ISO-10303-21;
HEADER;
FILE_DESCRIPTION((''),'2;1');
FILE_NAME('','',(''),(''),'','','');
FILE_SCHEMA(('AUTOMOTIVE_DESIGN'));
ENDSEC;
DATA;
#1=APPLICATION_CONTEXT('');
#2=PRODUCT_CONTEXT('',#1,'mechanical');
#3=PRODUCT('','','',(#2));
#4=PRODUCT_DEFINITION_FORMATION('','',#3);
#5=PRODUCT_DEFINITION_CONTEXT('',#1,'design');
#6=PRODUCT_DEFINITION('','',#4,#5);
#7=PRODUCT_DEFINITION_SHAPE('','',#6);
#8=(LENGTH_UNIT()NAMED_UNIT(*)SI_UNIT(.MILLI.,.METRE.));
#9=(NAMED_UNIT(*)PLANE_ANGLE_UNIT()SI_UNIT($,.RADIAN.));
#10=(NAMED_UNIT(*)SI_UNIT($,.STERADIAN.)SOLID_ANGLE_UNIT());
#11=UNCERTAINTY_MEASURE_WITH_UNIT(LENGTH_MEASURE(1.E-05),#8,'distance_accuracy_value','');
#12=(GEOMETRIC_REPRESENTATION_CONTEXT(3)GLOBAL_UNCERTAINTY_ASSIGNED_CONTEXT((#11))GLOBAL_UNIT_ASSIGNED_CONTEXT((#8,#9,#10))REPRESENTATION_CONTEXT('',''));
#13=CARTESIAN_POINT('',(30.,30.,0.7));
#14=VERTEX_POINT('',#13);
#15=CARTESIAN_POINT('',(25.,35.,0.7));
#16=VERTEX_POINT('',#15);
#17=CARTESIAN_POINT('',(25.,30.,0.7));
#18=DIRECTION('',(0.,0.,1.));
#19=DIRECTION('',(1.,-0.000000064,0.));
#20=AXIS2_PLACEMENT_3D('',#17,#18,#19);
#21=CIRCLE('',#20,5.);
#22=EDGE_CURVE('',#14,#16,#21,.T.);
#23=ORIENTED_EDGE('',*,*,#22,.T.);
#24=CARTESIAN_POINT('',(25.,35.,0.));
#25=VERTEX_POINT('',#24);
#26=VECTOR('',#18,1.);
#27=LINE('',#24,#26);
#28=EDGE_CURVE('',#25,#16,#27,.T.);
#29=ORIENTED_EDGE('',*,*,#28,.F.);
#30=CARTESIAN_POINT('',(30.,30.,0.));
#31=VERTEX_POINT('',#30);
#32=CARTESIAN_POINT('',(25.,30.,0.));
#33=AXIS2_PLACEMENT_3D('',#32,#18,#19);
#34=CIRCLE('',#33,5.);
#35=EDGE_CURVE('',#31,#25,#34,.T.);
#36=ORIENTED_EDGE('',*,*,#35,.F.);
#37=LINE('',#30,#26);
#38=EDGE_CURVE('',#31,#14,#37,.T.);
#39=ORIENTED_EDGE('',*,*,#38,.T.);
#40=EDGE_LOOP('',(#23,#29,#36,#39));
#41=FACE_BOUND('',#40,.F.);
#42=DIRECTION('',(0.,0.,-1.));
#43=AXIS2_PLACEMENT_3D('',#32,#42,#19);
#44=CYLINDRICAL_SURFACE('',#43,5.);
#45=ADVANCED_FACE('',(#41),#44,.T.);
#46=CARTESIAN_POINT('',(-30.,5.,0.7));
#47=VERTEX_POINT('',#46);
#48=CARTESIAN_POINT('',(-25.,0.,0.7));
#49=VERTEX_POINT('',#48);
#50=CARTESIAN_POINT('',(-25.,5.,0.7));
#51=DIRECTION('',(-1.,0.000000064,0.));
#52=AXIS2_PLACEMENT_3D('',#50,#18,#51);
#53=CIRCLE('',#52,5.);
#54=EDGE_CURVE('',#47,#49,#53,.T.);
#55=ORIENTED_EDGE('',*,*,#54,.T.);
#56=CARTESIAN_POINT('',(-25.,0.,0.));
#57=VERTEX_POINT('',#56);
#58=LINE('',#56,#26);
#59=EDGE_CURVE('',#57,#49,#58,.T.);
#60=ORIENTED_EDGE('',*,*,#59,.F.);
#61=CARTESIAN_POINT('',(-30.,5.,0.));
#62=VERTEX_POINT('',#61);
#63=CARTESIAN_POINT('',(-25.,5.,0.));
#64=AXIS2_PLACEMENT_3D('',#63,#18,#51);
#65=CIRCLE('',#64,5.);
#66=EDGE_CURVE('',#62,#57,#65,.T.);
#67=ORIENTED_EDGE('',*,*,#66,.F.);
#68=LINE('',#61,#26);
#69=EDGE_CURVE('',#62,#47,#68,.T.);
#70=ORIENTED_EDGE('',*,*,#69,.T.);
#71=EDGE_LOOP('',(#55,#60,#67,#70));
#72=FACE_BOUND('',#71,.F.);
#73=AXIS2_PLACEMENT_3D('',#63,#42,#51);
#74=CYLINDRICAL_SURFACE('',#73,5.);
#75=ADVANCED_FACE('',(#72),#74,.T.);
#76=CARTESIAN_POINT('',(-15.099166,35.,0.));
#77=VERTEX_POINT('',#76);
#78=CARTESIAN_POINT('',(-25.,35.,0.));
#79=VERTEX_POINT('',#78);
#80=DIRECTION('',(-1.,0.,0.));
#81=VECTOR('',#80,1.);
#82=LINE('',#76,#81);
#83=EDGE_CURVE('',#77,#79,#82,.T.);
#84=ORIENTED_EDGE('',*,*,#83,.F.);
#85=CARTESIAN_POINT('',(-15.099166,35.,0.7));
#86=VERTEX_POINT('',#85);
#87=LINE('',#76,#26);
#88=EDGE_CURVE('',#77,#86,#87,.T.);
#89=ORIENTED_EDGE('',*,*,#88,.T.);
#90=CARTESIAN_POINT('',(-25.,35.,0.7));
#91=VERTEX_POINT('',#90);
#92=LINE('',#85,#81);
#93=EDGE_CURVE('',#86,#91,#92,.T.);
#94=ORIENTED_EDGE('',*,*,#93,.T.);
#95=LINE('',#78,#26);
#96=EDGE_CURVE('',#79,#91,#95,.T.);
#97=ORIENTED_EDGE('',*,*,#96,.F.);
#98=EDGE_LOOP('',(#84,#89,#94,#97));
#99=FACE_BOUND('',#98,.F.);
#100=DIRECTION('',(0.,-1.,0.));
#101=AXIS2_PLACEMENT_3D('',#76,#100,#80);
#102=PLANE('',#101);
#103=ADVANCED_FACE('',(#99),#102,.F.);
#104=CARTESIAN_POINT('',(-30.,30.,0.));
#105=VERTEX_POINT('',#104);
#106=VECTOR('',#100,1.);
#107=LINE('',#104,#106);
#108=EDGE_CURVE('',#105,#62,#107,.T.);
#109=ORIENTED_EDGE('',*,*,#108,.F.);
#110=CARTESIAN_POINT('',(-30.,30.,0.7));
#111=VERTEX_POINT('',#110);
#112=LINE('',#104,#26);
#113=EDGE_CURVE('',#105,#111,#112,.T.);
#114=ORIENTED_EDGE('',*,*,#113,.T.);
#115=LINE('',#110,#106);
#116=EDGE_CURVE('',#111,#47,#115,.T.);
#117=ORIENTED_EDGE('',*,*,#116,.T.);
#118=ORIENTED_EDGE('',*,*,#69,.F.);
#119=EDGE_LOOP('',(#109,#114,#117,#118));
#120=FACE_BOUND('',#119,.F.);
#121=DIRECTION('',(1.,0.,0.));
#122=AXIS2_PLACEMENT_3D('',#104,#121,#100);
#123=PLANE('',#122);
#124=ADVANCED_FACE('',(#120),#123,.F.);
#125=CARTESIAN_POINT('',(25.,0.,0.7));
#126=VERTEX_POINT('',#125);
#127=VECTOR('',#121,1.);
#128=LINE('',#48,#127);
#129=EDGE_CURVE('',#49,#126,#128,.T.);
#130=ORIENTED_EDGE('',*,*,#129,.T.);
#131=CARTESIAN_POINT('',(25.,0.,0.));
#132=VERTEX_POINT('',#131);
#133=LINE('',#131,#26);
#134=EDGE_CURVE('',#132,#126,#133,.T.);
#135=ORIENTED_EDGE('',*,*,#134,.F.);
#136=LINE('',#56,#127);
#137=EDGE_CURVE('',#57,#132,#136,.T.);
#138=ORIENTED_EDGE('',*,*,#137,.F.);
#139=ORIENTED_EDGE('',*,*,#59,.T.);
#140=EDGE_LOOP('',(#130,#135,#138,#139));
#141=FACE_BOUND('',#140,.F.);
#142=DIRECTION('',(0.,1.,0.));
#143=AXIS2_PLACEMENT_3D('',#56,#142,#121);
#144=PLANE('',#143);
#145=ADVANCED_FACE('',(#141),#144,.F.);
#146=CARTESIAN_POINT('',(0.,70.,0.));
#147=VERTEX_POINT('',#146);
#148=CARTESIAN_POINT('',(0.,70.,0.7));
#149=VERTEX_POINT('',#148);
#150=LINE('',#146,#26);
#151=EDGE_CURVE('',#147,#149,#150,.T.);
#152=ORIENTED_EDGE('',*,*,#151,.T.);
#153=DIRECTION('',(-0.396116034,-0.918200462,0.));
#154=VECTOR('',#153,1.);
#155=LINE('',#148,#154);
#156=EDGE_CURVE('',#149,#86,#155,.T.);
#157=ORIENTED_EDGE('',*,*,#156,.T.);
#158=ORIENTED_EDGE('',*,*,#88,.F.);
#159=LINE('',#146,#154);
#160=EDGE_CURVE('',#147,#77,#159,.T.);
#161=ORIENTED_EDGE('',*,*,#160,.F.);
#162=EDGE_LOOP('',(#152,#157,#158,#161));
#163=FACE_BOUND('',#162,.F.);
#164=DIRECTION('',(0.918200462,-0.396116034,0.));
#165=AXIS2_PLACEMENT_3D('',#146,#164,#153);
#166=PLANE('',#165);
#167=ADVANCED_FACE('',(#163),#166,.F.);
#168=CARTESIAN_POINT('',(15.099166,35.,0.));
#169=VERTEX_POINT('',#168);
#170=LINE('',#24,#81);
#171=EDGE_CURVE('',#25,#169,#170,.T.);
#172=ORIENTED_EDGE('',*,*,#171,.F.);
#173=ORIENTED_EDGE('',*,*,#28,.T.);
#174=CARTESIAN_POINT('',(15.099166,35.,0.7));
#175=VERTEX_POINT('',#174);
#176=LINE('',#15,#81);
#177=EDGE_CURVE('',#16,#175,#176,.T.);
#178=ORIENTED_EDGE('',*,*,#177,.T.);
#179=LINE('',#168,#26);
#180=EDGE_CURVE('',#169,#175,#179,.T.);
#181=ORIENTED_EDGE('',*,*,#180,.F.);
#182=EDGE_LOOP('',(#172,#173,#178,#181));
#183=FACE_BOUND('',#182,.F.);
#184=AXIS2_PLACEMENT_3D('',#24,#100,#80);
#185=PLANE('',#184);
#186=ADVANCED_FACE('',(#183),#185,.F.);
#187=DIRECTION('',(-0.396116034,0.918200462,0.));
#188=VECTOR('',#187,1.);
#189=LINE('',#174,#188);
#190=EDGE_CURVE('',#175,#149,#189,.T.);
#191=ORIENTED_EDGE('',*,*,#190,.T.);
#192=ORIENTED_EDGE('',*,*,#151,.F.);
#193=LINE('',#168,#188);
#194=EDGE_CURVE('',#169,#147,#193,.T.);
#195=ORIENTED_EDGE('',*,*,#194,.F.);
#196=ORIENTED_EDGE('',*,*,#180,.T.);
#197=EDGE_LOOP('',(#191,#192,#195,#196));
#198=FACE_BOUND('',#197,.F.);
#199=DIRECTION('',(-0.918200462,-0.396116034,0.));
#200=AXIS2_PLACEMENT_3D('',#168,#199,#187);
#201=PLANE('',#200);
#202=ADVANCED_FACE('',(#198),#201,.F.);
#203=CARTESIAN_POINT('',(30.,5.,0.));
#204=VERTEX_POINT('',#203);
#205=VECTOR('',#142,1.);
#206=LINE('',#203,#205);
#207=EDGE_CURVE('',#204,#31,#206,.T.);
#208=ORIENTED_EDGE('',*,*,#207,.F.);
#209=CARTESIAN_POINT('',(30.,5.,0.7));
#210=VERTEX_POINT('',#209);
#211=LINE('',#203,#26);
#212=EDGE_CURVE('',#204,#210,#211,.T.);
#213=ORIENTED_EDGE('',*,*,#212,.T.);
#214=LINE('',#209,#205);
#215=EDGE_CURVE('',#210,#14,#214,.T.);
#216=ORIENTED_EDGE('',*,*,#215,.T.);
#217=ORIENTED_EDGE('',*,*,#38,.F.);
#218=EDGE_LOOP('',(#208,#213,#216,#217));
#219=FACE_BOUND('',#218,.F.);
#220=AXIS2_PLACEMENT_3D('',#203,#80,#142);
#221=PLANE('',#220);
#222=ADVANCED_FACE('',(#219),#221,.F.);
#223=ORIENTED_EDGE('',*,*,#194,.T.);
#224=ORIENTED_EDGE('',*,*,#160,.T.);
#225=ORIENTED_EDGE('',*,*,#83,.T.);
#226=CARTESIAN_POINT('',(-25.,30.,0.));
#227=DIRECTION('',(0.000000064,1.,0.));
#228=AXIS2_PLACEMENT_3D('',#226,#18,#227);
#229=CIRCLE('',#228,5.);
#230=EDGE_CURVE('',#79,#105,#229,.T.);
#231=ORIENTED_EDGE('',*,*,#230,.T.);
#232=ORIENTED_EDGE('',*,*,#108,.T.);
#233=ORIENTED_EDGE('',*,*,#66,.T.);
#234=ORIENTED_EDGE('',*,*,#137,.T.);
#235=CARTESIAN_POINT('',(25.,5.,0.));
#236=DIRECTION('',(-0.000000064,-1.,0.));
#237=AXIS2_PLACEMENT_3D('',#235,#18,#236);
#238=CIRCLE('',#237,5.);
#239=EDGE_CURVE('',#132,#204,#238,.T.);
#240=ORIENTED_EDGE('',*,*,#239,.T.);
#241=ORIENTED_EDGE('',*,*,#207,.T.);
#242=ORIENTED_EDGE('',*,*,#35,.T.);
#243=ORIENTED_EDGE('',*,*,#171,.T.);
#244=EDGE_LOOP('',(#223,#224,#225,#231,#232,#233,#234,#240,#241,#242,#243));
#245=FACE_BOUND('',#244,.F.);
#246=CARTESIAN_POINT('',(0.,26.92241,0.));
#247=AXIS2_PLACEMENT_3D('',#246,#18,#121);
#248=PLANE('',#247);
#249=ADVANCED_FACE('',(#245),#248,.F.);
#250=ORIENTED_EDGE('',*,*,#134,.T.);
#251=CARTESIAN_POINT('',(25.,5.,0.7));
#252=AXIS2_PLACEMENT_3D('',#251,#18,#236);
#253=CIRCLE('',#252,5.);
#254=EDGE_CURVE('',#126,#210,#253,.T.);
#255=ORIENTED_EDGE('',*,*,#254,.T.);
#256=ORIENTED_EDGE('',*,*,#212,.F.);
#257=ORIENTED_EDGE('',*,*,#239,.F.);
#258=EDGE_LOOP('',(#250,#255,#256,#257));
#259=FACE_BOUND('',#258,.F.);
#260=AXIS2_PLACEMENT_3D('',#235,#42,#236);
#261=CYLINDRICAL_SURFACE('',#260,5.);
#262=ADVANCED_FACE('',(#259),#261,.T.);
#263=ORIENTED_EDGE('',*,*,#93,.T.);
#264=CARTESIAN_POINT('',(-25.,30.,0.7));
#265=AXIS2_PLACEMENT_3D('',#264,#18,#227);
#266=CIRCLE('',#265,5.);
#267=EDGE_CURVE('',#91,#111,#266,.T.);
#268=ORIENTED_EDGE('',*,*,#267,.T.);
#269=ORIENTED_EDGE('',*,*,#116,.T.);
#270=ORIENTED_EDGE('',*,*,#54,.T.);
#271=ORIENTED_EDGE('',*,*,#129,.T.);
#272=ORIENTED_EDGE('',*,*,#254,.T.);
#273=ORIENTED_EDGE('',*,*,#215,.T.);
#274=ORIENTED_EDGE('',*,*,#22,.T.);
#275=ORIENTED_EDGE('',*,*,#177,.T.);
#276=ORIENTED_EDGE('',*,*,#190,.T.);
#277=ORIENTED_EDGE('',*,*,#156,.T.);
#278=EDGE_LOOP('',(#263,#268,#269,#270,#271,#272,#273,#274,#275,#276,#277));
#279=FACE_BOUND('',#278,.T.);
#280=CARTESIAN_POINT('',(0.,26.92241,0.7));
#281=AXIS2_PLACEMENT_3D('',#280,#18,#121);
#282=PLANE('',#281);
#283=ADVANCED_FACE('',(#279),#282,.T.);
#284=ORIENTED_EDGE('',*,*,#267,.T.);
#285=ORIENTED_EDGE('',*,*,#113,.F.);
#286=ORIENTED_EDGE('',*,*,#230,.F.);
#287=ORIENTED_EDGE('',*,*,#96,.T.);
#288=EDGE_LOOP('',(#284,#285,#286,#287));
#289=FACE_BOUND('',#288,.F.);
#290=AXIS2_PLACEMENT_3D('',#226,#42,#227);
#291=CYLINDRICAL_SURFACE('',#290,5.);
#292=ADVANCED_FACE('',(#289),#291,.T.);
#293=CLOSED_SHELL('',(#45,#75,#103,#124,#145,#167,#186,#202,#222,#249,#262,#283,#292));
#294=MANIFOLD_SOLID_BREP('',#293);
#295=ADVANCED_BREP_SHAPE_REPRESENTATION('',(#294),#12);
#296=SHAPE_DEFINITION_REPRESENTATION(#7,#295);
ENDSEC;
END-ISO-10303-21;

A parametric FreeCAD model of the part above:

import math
import FreeCAD as App
import Part
import Sketcher
Q = App.Units.Quantity

doc = App.newDocument("Part")
params = doc.addObject("Spreadsheet::Sheet", "Params")
for row, (alias, value) in enumerate([
    ("sketch1_radius", "5 mm"),
    ("sketch1_width", "50 mm"),
    ("sketch1_height", "25 mm"),
    ("pad1_length", "0.7 mm"),
], start=1):
    params.set(f"A{row}", alias)
    params.set(f"B{row}", "=" + value)
    params.setAlias(f"B{row}", alias)

body = doc.addObject("PartDesign::Body", "Body")

# Sketch on XY plane
sketch1 = doc.addObject("Sketcher::SketchObject", "Sketch")
body.addObject(sketch1)
sketch1.AttachmentSupport = (doc.XY_Plane, [""])
sketch1.MapMode = "FlatFace"
sketch1.addGeometry([
    Part.LineSegment(App.Vector(-25, 0, 0), App.Vector(25, 0, 0)),  # 0
    Part.ArcOfCircle(Part.Circle(App.Vector(25, 5, 0), App.Vector(0, 0, 1), 5), math.radians(-90), math.radians(0)),  # 1
    Part.LineSegment(App.Vector(30, 5, 0), App.Vector(30, 30, 0)),  # 2
    Part.ArcOfCircle(Part.Circle(App.Vector(25, 30, 0), App.Vector(0, 0, 1), 5), math.radians(0), math.radians(90)),  # 3
    Part.LineSegment(App.Vector(25, 35, 0), App.Vector(15.1, 35, 0)),  # 4
    Part.LineSegment(App.Vector(15.1, 35, 0), App.Vector(0, 70, 0)),  # 5
    Part.LineSegment(App.Vector(0, 70, 0), App.Vector(-15.1, 35, 0)),  # 6
    Part.LineSegment(App.Vector(-15.1, 35, 0), App.Vector(-25, 35, 0)),  # 7
    Part.ArcOfCircle(Part.Circle(App.Vector(-25, 30, 0), App.Vector(0, 0, 1), 5), math.radians(90), math.radians(180)),  # 8
    Part.LineSegment(App.Vector(-30, 30, 0), App.Vector(-30, 5, 0)),  # 9
    Part.ArcOfCircle(Part.Circle(App.Vector(-25, 5, 0), App.Vector(0, 0, 1), 5), math.radians(180), math.radians(270)),  # 10
], False)
sketch1.addConstraint([
    Sketcher.Constraint("Tangent", 0, 2, 1, 1),
    Sketcher.Constraint("Tangent", 1, 2, 2, 1),
    Sketcher.Constraint("Tangent", 2, 2, 3, 1),
    Sketcher.Constraint("Tangent", 3, 2, 4, 1),
    Sketcher.Constraint("Coincident", 4, 2, 5, 1),
    Sketcher.Constraint("Coincident", 5, 2, 6, 1),
    Sketcher.Constraint("Coincident", 6, 2, 7, 1),
    Sketcher.Constraint("Tangent", 7, 2, 8, 1),
    Sketcher.Constraint("Tangent", 8, 2, 9, 1),
    Sketcher.Constraint("Tangent", 9, 2, 10, 1),
    Sketcher.Constraint("Tangent", 10, 2, 0, 1),
    Sketcher.Constraint("Horizontal", 0),
    Sketcher.Constraint("Vertical", 2),
    Sketcher.Constraint("Horizontal", 4),
    Sketcher.Constraint("Horizontal", 7),
    Sketcher.Constraint("Vertical", 9),
    Sketcher.Constraint("Equal", 1, 3),
    Sketcher.Constraint("Equal", 3, 8),
    Sketcher.Constraint("Equal", 8, 10),
    Sketcher.Constraint("Symmetric", 0, 2, 10, 2, -1, 1),
    Sketcher.Constraint("Symmetric", 4, 2, 6, 2, -2),
    Sketcher.Constraint("PointOnObject", 5, 2, -2),
    Sketcher.Constraint("Radius", 1, Q("5 mm")),
    Sketcher.Constraint("DistanceX", 0, 1, 0, 2, Q("50 mm")),
    Sketcher.Constraint("DistanceY", 2, 1, 2, 2, Q("25 mm")),
    Sketcher.Constraint("DistanceY", -1, 1, 5, 2, Q("70 mm")),
    Sketcher.Constraint("DistanceX", 4, 2, 4, 1, Q("9.900834 mm")),
])
sketch1.setExpression("Constraints[22]", "Params.sketch1_radius")
sketch1.setExpression("Constraints[23]", "Params.sketch1_width")
sketch1.setExpression("Constraints[24]", "Params.sketch1_height")
pad1 = doc.addObject("PartDesign::Pad", "Pad")
body.addObject(pad1)
pad1.Profile = sketch1
pad1.setExpression("Length", "Params.pad1_length")

doc.recompute()
